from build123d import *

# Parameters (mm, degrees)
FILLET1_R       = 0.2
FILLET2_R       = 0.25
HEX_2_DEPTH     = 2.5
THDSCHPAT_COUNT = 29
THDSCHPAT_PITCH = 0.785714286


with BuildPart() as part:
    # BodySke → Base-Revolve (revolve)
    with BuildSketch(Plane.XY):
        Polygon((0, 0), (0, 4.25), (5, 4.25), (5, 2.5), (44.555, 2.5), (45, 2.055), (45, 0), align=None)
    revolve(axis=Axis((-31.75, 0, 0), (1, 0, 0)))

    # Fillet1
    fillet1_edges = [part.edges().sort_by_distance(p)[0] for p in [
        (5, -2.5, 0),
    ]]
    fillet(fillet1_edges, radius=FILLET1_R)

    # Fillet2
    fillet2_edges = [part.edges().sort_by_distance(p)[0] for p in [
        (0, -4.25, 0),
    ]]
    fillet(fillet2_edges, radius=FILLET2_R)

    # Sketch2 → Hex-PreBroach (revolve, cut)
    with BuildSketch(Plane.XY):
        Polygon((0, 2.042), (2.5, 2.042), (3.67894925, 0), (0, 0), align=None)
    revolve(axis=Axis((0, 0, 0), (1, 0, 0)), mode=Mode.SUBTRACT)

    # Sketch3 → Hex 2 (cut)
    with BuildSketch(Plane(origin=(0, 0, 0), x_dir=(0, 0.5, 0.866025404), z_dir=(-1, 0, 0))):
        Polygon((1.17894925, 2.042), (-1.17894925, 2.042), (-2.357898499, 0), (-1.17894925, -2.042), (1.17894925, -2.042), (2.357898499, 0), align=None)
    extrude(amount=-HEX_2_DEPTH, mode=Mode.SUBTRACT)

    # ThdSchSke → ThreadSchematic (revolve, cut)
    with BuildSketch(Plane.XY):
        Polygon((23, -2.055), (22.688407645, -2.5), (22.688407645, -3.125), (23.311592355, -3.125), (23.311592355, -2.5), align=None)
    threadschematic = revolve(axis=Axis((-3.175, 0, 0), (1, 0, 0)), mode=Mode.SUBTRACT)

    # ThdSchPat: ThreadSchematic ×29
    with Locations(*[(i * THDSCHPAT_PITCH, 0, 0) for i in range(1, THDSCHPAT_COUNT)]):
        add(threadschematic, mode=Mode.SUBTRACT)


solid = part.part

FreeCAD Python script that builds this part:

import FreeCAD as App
import Part
import Sketcher
Q = App.Units.Quantity


def edges_at(feature, points):
    """Names of the edges that pass closest to the given points."""
    edges = feature.Shape.Edges
    near = lambda p: min(range(len(edges)), key=lambda i: edges[i].distToShape(Part.Vertex(*p))[0])
    return sorted({f"Edge{near(p) + 1}" for p in points})

doc = App.newDocument("Part")
params = doc.addObject("Spreadsheet::Sheet", "Params")
for row, (alias, value) in enumerate([
    ("sketch1_width", "45 mm"),
    ("sketch1_width2", "5 mm"),
    ("sketch1_height", "4.25 mm"),
    ("sketch1_height2", "1.75 mm"),
    ("revolution_angle", "360 deg"),
    ("fillet_radius", "0.2 mm"),
    ("fillet2_radius", "0.25 mm"),
    ("sketch2_width", "2.5 mm"),
    ("groove_angle", "360 deg"),
    ("pocket1_length", "2.5 mm"),
    ("groove2_angle", "360 deg"),
    ("linearpattern_pitch", "0.785714 mm"),
], start=1):
    params.set(f"A{row}", alias)
    params.set(f"B{row}", "=" + value)
    params.setAlias(f"B{row}", alias)

body = doc.addObject("PartDesign::Body", "Body")

# Sketch on XY plane
sketch1 = doc.addObject("Sketcher::SketchObject", "Sketch")
body.addObject(sketch1)
sketch1.AttachmentSupport = (doc.XY_Plane, [""])
sketch1.MapMode = "FlatFace"
sketch1.addGeometry([
    Part.LineSegment(App.Vector(0, 4.2, 0), App.Vector(0, 0, 0)),  # 0
    Part.LineSegment(App.Vector(0, 0, 0), App.Vector(45, 0, 0)),  # 1
    Part.LineSegment(App.Vector(45, 0, 0), App.Vector(45, 2.1, 0)),  # 2
    Part.LineSegment(App.Vector(45, 2.1, 0), App.Vector(44.6, 2.5, 0)),  # 3
    Part.LineSegment(App.Vector(44.6, 2.5, 0), App.Vector(5, 2.5, 0)),  # 4
    Part.LineSegment(App.Vector(5, 2.5, 0), App.Vector(5, 4.2, 0)),  # 5
    Part.LineSegment(App.Vector(5, 4.2, 0), App.Vector(0, 4.2, 0)),  # 6
], False)
sketch1.addConstraint([
    Sketcher.Constraint("Coincident", 0, 2, 1, 1),
    Sketcher.Constraint("Coincident", 1, 2, 2, 1),
    Sketcher.Constraint("Coincident", 2, 2, 3, 1),
    Sketcher.Constraint("Coincident", 3, 2, 4, 1),
    Sketcher.Constraint("Coincident", 4, 2, 5, 1),
    Sketcher.Constraint("Coincident", 5, 2, 6, 1),
    Sketcher.Constraint("Coincident", 6, 2, 0, 1),
    Sketcher.Constraint("Vertical", 0),
    Sketcher.Constraint("Horizontal", 1),
    Sketcher.Constraint("Vertical", 2),
    Sketcher.Constraint("Horizontal", 4),
    Sketcher.Constraint("Vertical", 5),
    Sketcher.Constraint("Horizontal", 6),
    Sketcher.Constraint("Coincident", 0, 2, -1, 1),
    Sketcher.Constraint("DistanceX", 1, 1, 1, 2, 45.0),
    Sketcher.Constraint("DistanceX", 6, 2, 6, 1, 5.0),
    Sketcher.Constraint("Angle", 3, Q("135 deg")),
    Sketcher.Constraint("DistanceY", 0, 2, 0, 1, 4.25),
    Sketcher.Constraint("DistanceY", 5, 1, 5, 2, 1.75),
    Sketcher.Constraint("DistanceX", 4, 2, 4, 1, 39.555),
])
sketch1.setExpression("Constraints[14]", "Params.sketch1_width")
sketch1.setExpression("Constraints[15]", "Params.sketch1_width2")
sketch1.setExpression("Constraints[17]", "Params.sketch1_height")
sketch1.setExpression("Constraints[18]", "Params.sketch1_height2")
revolution = doc.addObject("PartDesign::Revolution", "Revolution")
body.addObject(revolution)
revolution.Profile = sketch1
revolution.ReferenceAxis = (sketch1, ["H_Axis"])
revolution.setExpression("Angle", "Params.revolution_angle")
doc.recompute()

fillet = doc.addObject("PartDesign::Fillet", "Fillet")
body.addObject(fillet)
fillet.Base = (revolution, edges_at(revolution, [(5, -2.5, 0)]))
fillet.setExpression("Radius", "Params.fillet_radius")
doc.recompute()

fillet2 = doc.addObject("PartDesign::Fillet", "Fillet001")
body.addObject(fillet2)
fillet2.Base = (fillet, edges_at(fillet, [(0, -4.25, 0)]))
fillet2.setExpression("Radius", "Params.fillet2_radius")

# Sketch on XY plane
sketch2 = doc.addObject("Sketcher::SketchObject", "Sketch001")
body.addObject(sketch2)
sketch2.AttachmentSupport = (doc.XY_Plane, [""])
sketch2.MapMode = "FlatFace"
sketch2.addGeometry([
    Part.LineSegment(App.Vector(2.5, 2, 0), App.Vector(0, 2, 0)),
    Part.LineSegment(App.Vector(0, 2, 0), App.Vector(0, 0, 0)),
    Part.LineSegment(App.Vector(0, 0, 0), App.Vector(3.7, 0, 0)),
    Part.LineSegment(App.Vector(3.7, 0, 0), App.Vector(2.5, 2, 0)),
], False)
sketch2.addConstraint([
    Sketcher.Constraint("Coincident", 0, 2, 1, 1),
    Sketcher.Constraint("Coincident", 1, 2, 2, 1),
    Sketcher.Constraint("Coincident", 2, 2, 3, 1),
    Sketcher.Constraint("Coincident", 3, 2, 0, 1),
    Sketcher.Constraint("Horizontal", 0),
    Sketcher.Constraint("Vertical", 1),
    Sketcher.Constraint("Horizontal", 2),
    Sketcher.Constraint("Coincident", 1, 2, -1, 1),
    Sketcher.Constraint("Angle", 3, Q("120 deg")),
    Sketcher.Constraint("DistanceX", 0, 2, 0, 1, 2.5),
    Sketcher.Constraint("DistanceY", 1, 2, 1, 1, 2.042),
])
sketch2.setExpression("Constraints[9]", "Params.sketch2_width")
groove = doc.addObject("PartDesign::Groove", "Groove")
body.addObject(groove)
groove.Profile = sketch2
groove.ReferenceAxis = (sketch2, ["H_Axis"])
groove.setExpression("Angle", "Params.groove_angle")

# Sketch on YZ plane
sketch3 = doc.addObject("Sketcher::SketchObject", "Sketch002")
body.addObject(sketch3)
sketch3.AttachmentSupport = (doc.YZ_Plane, [""])
sketch3.MapMode = "FlatFace"
sketch3.addGeometry([
    Part.LineSegment(App.Vector(2.4, 0, 0), App.Vector(1.2, -2, 0)),  # 0
    Part.LineSegment(App.Vector(1.2, -2, 0), App.Vector(-1.2, -2, 0)),  # 1
    Part.LineSegment(App.Vector(-1.2, -2, 0), App.Vector(-2.4, 0, 0)),  # 2
    Part.LineSegment(App.Vector(-2.4, 0, 0), App.Vector(-1.2, 2, 0)),  # 3
    Part.LineSegment(App.Vector(-1.2, 2, 0), App.Vector(1.2, 2, 0)),  # 4
    Part.LineSegment(App.Vector(1.2, 2, 0), App.Vector(2.4, 0, 0)),  # 5
], False)
sketch3.addConstraint([
    Sketcher.Constraint("Coincident", 0, 2, 1, 1),
    Sketcher.Constraint("Coincident", 1, 2, 2, 1),
    Sketcher.Constraint("Coincident", 2, 2, 3, 1),
    Sketcher.Constraint("Coincident", 3, 2, 4, 1),
    Sketcher.Constraint("Coincident", 4, 2, 5, 1),
    Sketcher.Constraint("Coincident", 5, 2, 0, 1),
    Sketcher.Constraint("Horizontal", 1),
    Sketcher.Constraint("Horizontal", 4),
    Sketcher.Constraint("Symmetric", 0, 2, 3, 2, -1, 1),
    Sketcher.Constraint("Symmetric", 2, 2, 5, 2, -1, 1),
    Sketcher.Constraint("PointOnObject", 2, 2, -1),
    Sketcher.Constraint("Parallel", 2, 5),
    Sketcher.Constraint("Vertical", 1, 2, 3, 2),
    Sketcher.Constraint("Angle", 0, Q("-120 deg")),
    Sketcher.Constraint("DistanceX", 1, 2, 1, 1, 2.357899),
    Sketcher.Constraint("DistanceY", 0, 2, -1, 1, 2.042),
])
pocket1 = doc.addObject("PartDesign::Pocket", "Pocket")
body.addObject(pocket1)
pocket1.Profile = sketch3
pocket1.setExpression("Length", "Params.pocket1_length")
pocket1.Reversed = True

# Sketch on XY plane
sketch4 = doc.addObject("Sketcher::SketchObject", "Sketch003")
body.addObject(sketch4)
sketch4.AttachmentSupport = (doc.XY_Plane, [""])
sketch4.MapMode = "FlatFace"
sketch4.addGeometry([
    Part.LineSegment(App.Vector(23, -2.1, 0), App.Vector(22.7, -2.5, 0)),  # 0
    Part.LineSegment(App.Vector(22.7, -2.5, 0), App.Vector(22.7, -3.1, 0)),  # 1
    Part.LineSegment(App.Vector(22.7, -3.1, 0), App.Vector(23.3, -3.1, 0)),  # 2
    Part.LineSegment(App.Vector(23.3, -3.1, 0), App.Vector(23.3, -2.5, 0)),  # 3
    Part.LineSegment(App.Vector(23.3, -2.5, 0), App.Vector(23, -2.1, 0)),  # 4
], False)
sketch4.addConstraint([
    Sketcher.Constraint("Coincident", 0, 2, 1, 1),
    Sketcher.Constraint("Coincident", 1, 2, 2, 1),
    Sketcher.Constraint("Coincident", 2, 2, 3, 1),
    Sketcher.Constraint("Coincident", 3, 2, 4, 1),
    Sketcher.Constraint("Coincident", 4, 2, 0, 1),
    Sketcher.Constraint("Vertical", 1),
    Sketcher.Constraint("Horizontal", 2),
    Sketcher.Constraint("Vertical", 3),
    Sketcher.Constraint("Horizontal", 0, 2, 3, 2),
    Sketcher.Constraint("Equal", 0, 4),
    Sketcher.Constraint("Angle", 0, Q("-125 deg")),
    Sketcher.Constraint("DistanceX", -1, 1, 4, 2, 23.0),
    Sketcher.Constraint("DistanceY", 0, 2, -1, 1, 2.5),
    Sketcher.Constraint("DistanceY", 1, 2, 1, 1, 0.625),
    Sketcher.Constraint("DistanceY", 1, 2, 4, 2, 1.07),
])
groove2 = doc.addObject("PartDesign::Groove", "Groove001")
body.addObject(groove2)
groove2.Profile = sketch4
groove2.ReferenceAxis = (sketch4, ["H_Axis"])
groove2.setExpression("Angle", "Params.groove2_angle")
doc.recompute()

linearpattern = doc.addObject("PartDesign::LinearPattern", "LinearPattern")
body.addObject(linearpattern)
linearpattern.Originals = [groove2]
linearpattern.Direction = (doc.X_Axis, [""])
linearpattern.Mode = "offset"
linearpattern.setExpression("Offset", "Params.linearpattern_pitch")
linearpattern.Occurrences = 29
body.Tip = linearpattern

doc.recompute()
